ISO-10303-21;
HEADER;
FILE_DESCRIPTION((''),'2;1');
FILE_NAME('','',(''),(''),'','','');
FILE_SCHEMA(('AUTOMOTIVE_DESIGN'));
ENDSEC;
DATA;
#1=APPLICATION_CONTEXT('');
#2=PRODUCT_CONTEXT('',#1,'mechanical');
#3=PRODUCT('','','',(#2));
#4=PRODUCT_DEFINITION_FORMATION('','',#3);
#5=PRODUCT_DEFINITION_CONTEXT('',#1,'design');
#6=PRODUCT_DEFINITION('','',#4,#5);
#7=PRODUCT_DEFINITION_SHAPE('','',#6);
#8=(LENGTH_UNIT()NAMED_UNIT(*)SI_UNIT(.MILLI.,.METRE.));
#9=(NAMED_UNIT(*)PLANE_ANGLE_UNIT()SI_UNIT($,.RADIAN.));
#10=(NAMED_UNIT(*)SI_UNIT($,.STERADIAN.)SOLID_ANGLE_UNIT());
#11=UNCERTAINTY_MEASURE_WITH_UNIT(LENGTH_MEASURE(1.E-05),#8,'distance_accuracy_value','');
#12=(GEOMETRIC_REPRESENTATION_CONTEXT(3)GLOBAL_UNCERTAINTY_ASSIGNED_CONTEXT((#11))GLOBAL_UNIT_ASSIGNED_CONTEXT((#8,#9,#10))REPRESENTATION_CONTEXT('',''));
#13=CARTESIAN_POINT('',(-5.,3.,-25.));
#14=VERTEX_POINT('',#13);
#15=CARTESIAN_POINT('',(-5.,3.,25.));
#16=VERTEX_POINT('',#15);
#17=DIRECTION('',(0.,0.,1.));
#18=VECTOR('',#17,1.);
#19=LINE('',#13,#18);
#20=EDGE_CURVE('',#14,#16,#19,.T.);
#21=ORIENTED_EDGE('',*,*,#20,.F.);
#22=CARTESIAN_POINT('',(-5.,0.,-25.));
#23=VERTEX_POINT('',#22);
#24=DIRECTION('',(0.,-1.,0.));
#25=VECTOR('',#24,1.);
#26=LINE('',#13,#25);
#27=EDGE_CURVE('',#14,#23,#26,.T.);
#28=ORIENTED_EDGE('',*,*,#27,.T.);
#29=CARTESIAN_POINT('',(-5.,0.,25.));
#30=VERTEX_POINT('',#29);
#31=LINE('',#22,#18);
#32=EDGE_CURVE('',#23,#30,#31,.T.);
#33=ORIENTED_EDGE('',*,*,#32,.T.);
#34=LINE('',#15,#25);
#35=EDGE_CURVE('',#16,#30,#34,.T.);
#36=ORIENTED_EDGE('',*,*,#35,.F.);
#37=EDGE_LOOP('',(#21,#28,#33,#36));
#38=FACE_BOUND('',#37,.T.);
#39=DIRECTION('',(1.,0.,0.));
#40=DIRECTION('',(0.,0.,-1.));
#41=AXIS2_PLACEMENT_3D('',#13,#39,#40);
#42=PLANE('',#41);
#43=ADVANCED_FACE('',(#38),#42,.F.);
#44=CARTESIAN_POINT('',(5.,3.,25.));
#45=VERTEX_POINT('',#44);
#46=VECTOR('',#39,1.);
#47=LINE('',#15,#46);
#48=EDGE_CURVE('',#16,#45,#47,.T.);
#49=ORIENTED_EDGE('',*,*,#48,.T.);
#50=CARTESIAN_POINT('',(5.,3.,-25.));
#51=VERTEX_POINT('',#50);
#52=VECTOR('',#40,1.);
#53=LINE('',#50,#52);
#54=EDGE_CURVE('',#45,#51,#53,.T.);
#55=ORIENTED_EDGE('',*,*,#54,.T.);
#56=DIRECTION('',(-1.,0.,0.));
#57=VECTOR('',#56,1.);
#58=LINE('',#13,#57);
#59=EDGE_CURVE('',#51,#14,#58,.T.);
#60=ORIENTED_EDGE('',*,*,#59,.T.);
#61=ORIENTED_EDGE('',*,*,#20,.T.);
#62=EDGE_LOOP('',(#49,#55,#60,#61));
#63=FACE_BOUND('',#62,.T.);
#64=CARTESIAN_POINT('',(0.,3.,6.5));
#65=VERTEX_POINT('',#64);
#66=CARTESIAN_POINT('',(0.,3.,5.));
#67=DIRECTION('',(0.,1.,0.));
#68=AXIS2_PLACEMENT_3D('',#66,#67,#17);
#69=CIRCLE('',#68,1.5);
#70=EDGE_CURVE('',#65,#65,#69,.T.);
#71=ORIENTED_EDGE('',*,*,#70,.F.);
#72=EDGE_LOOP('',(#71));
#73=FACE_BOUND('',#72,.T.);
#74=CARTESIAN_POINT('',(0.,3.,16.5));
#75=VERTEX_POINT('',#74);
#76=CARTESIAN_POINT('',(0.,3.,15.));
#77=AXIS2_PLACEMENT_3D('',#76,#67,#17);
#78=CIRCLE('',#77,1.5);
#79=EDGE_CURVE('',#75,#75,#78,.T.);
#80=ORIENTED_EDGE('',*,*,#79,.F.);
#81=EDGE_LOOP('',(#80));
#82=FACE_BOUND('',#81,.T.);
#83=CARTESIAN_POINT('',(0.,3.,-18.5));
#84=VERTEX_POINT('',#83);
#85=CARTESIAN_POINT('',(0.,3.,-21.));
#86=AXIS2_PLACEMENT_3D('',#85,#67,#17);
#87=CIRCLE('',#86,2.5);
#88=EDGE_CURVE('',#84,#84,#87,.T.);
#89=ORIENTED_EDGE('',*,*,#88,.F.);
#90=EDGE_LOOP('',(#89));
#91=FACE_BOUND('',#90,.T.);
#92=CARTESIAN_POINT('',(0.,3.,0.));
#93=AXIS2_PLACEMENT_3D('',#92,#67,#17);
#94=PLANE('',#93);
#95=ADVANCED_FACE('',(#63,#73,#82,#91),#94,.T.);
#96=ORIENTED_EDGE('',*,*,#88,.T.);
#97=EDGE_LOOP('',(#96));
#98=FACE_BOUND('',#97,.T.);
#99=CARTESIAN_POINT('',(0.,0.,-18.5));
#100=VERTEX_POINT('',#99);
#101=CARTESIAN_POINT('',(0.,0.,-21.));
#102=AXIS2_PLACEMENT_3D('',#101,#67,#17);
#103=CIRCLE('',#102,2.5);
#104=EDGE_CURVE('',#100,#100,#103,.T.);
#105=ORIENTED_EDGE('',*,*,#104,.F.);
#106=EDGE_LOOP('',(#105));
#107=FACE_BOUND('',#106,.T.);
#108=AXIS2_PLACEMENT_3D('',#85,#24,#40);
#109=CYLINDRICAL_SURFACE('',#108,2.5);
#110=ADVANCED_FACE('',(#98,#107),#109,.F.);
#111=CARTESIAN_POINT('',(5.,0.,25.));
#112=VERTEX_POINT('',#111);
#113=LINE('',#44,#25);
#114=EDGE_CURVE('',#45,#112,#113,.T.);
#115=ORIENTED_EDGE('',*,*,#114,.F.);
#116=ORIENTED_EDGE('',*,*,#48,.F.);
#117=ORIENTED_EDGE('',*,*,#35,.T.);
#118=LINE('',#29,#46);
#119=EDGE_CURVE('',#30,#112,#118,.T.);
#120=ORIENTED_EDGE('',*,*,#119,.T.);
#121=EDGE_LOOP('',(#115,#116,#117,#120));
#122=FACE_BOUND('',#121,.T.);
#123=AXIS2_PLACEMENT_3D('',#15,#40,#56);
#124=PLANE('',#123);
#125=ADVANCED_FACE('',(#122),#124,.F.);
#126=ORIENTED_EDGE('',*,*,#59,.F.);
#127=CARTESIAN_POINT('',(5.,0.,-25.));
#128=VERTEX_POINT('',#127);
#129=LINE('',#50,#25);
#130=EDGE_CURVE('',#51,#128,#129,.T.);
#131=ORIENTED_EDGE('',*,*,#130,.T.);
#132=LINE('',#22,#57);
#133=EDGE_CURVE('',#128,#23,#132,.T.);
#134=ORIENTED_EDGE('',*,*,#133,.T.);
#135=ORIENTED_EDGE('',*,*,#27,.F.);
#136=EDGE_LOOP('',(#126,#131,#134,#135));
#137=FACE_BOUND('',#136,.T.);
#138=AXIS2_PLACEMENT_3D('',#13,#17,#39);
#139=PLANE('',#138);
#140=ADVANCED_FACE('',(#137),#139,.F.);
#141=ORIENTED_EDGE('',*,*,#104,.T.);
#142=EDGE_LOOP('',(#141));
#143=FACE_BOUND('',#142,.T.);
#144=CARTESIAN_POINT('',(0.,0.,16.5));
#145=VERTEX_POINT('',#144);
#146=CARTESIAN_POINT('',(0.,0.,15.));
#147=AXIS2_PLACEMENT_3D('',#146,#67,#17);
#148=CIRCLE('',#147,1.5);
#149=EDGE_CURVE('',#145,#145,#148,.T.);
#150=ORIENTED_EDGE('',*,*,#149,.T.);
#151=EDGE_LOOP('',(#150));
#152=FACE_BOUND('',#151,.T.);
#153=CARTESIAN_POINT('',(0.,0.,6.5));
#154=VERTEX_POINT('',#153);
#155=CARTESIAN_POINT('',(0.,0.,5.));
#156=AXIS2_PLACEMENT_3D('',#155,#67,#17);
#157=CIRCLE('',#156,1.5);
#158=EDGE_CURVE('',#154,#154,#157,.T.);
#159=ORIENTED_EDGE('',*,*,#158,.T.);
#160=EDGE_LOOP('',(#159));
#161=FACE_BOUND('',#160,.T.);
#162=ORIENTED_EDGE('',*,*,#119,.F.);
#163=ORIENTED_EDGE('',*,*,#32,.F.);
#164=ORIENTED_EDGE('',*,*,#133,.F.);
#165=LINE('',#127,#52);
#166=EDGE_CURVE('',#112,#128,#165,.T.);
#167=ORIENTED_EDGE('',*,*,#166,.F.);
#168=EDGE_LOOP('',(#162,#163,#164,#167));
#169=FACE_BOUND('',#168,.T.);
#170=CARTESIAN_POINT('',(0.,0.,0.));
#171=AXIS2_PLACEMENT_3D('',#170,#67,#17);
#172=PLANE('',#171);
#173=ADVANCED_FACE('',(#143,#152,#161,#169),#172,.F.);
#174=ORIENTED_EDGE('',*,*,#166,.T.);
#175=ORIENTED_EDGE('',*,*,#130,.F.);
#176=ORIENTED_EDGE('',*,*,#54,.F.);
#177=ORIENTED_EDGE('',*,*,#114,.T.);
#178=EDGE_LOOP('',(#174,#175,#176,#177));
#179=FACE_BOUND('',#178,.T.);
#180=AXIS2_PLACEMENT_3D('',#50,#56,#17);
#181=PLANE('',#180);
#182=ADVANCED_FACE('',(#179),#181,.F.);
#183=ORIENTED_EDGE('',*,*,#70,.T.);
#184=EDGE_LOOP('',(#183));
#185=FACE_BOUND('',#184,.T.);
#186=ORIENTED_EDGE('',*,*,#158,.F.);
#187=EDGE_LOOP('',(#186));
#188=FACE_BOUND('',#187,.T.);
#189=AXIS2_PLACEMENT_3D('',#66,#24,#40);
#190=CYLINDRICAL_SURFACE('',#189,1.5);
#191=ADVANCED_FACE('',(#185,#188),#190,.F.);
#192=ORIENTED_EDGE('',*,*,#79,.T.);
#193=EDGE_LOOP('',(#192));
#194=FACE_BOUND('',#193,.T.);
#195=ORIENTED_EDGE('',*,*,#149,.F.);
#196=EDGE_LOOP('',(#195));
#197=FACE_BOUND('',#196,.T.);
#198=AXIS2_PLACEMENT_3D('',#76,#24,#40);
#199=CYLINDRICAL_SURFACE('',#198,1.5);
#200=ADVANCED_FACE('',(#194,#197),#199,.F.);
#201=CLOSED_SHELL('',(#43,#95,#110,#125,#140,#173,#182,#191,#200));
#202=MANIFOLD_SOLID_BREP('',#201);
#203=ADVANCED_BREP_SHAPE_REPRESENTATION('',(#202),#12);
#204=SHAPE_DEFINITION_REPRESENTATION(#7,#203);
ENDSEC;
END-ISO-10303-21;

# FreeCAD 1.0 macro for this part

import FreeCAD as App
import Part
import Sketcher
from FreeCAD import Vector


def add_polygon(sketch, points):
    """Adds a closed chain of lines whose ends are joined by coincident constraints."""
    first, n = sketch.GeometryCount, len(points)
    for a, b in zip(points, points[1:] + points[:1]):
        sketch.addGeometry(Part.LineSegment(App.Vector(*a, 0), App.Vector(*b, 0)), False)
    for i in range(n):
        sketch.addConstraint(Sketcher.Constraint("Coincident", first + i, 2, first + (i + 1) % n, 1))

doc = App.newDocument("Part")
body = doc.addObject("PartDesign::Body", "Body")

sketch1 = doc.addObject("Sketcher::SketchObject", "Sketch")
body.addObject(sketch1)
sketch1.AttachmentSupport = (doc.XZ_Plane, [""])
sketch1.MapMode = "FlatFace"
add_polygon(sketch1, [(-5, -25), (-5, 25), (5, 25), (5, -25)])
sketch1.addGeometry(Part.Circle(Vector(0, 15, 0), Vector(0, 0, 1), 1.5), False)
sketch1.addGeometry(Part.Circle(Vector(0, 5, 0), Vector(0, 0, 1), 1.5), False)
sketch1.addGeometry(Part.Circle(Vector(0, -21, 0), Vector(0, 0, 1), 2.5), False)
sketch1.addConstraint(Sketcher.Constraint("Vertical", 0))
sketch1.addConstraint(Sketcher.Constraint("Horizontal", 1))
sketch1.addConstraint(Sketcher.Constraint("Vertical", 2))
sketch1.addConstraint(Sketcher.Constraint("Horizontal", 3))
sketch1.addConstraint(Sketcher.Constraint("Equal", 4, 5))
sketch1.addConstraint(Sketcher.Constraint("Symmetric", 0, 2, 2, 2, -1, 1))
sketch1.addConstraint(Sketcher.Constraint("PointOnObject", 4, 3, -2))
sketch1.addConstraint(Sketcher.Constraint("PointOnObject", 5, 3, -2))
sketch1.addConstraint(Sketcher.Constraint("PointOnObject", 6, 3, -2))
sketch1.addConstraint(Sketcher.Constraint("Diameter", 4, 3.0))
sketch1.addConstraint(Sketcher.Constraint("Diameter", 6, 5.0))
sketch1.addConstraint(Sketcher.Constraint("DistanceX", 1, 1, 1, 2, 10.0))
sketch1.addConstraint(Sketcher.Constraint("DistanceY", 0, 1, 0, 2, 50.0))
sketch1.addConstraint(Sketcher.Constraint("DistanceY", -1, 1, 4, 3, 15.0))
sketch1.addConstraint(Sketcher.Constraint("DistanceY", -1, 1, 5, 3, 5.0))
sketch1.addConstraint(Sketcher.Constraint("DistanceY", 6, 3, -1, 1, 21.0))
pad1 = doc.addObject("PartDesign::Pad", "Pad")
body.addObject(pad1)
pad1.Profile = sketch1
pad1.Length = 3
pad1.Reversed = True

doc.recompute()
